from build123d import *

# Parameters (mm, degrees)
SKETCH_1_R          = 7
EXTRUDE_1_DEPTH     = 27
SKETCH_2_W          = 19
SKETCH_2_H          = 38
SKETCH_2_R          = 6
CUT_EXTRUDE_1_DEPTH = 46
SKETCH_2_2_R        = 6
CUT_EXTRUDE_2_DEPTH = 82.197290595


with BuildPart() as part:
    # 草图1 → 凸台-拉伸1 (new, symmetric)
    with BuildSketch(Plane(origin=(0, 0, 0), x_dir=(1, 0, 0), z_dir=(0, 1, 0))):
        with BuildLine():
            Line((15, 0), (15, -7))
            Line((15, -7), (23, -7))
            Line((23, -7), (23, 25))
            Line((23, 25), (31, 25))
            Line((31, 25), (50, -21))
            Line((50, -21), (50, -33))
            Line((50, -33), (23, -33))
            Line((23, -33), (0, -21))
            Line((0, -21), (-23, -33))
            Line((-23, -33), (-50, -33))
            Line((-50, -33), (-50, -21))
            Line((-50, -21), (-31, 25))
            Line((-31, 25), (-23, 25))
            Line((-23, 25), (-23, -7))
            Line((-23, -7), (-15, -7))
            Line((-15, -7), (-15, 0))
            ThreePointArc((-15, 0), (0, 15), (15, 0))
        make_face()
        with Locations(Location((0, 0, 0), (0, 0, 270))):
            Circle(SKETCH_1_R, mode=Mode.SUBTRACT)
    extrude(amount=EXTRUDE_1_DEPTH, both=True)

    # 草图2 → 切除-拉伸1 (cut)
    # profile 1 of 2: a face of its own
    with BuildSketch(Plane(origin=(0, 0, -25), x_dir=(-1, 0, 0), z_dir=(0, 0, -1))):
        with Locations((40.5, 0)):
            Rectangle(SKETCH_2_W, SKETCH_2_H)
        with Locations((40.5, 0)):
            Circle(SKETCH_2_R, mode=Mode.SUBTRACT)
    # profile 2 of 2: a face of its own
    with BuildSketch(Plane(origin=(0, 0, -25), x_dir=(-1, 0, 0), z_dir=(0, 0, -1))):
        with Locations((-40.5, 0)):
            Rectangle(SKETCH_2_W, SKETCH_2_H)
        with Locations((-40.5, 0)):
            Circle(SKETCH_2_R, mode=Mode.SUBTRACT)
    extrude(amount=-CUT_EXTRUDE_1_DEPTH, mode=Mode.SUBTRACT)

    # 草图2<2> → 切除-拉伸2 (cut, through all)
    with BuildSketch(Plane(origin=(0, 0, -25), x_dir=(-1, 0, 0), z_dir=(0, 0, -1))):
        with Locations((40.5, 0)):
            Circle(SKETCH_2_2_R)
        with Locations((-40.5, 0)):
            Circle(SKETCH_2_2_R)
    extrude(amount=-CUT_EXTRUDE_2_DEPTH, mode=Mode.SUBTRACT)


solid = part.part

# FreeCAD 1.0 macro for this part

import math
import FreeCAD as App
import Part
import Sketcher


def add_polygon(sketch, points):
    """Adds a closed chain of lines whose ends are joined by coincident constraints."""
    first, n = sketch.GeometryCount, len(points)
    for a, b in zip(points, points[1:] + points[:1]):
        sketch.addGeometry(Part.LineSegment(App.Vector(*a, 0), App.Vector(*b, 0)), False)
    for i in range(n):
        sketch.addConstraint(Sketcher.Constraint("Coincident", first + i, 2, first + (i + 1) % n, 1))

doc = App.newDocument("Part")
body = doc.addObject("PartDesign::Body", "Body")

# Sketch on XZ plane
sketch1 = doc.addObject("Sketcher::SketchObject", "Sketch")
body.addObject(sketch1)
sketch1.AttachmentSupport = (doc.XZ_Plane, [""])
sketch1.MapMode = "FlatFace"
sketch1.addGeometry([
    Part.LineSegment(App.Vector(15, 7, 0), App.Vector(15, 0, 0)),  # 0
    Part.ArcOfCircle(Part.Circle(App.Vector(0, 0, 0), App.Vector(0, 0, 1), 15), math.radians(180), math.radians(360)),  # 1
    Part.LineSegment(App.Vector(-15, 0, 0), App.Vector(-15, 7, 0)),  # 2
    Part.LineSegment(App.Vector(-15, 7, 0), App.Vector(-23, 7, 0)),  # 3
    Part.LineSegment(App.Vector(-23, 7, 0), App.Vector(-23, -25, 0)),  # 4
    Part.LineSegment(App.Vector(-23, -25, 0), App.Vector(-31, -25, 0)),  # 5
    Part.LineSegment(App.Vector(-31, -25, 0), App.Vector(-50, 21, 0)),  # 6
    Part.LineSegment(App.Vector(-50, 21, 0), App.Vector(-50, 33, 0)),  # 7
    Part.LineSegment(App.Vector(-50, 33, 0), App.Vector(-23, 33, 0)),  # 8
    Part.LineSegment(App.Vector(-23, 33, 0), App.Vector(0, 21, 0)),  # 9
    Part.LineSegment(App.Vector(0, 21, 0), App.Vector(23, 33, 0)),  # 10
    Part.LineSegment(App.Vector(23, 33, 0), App.Vector(50, 33, 0)),  # 11
    Part.LineSegment(App.Vector(50, 33, 0), App.Vector(50, 21, 0)),  # 12
    Part.LineSegment(App.Vector(50, 21, 0), App.Vector(31, -25, 0)),  # 13
    Part.LineSegment(App.Vector(31, -25, 0), App.Vector(23, -25, 0)),  # 14
    Part.LineSegment(App.Vector(23, -25, 0), App.Vector(23, 7, 0)),  # 15
    Part.LineSegment(App.Vector(23, 7, 0), App.Vector(15, 7, 0)),  # 16
    Part.Circle(App.Vector(0, 0, 0), App.Vector(0, 0, 1), 7),  # 17
], False)
sketch1.addConstraint([
    Sketcher.Constraint("Tangent", 0, 2, 1, 2),
    Sketcher.Constraint("Tangent", 1, 1, 2, 1),
    Sketcher.Constraint("Coincident", 2, 2, 3, 1),
    Sketcher.Constraint("Coincident", 3, 2, 4, 1),
    Sketcher.Constraint("Coincident", 4, 2, 5, 1),
    Sketcher.Constraint("Coincident", 5, 2, 6, 1),
    Sketcher.Constraint("Coincident", 6, 2, 7, 1),
    Sketcher.Constraint("Coincident", 7, 2, 8, 1),
    Sketcher.Constraint("Coincident", 8, 2, 9, 1),
    Sketcher.Constraint("Coincident", 9, 2, 10, 1),
    Sketcher.Constraint("Coincident", 10, 2, 11, 1),
    Sketcher.Constraint("Coincident", 11, 2, 12, 1),
    Sketcher.Constraint("Coincident", 12, 2, 13, 1),
    Sketcher.Constraint("Coincident", 13, 2, 14, 1),
    Sketcher.Constraint("Coincident", 14, 2, 15, 1),
    Sketcher.Constraint("Coincident", 15, 2, 16, 1),
    Sketcher.Constraint("Coincident", 16, 2, 0, 1),
    Sketcher.Constraint("Vertical", 0),
    Sketcher.Constraint("Vertical", 2),
    Sketcher.Constraint("Horizontal", 3),
    Sketcher.Constraint("Vertical", 4),
    Sketcher.Constraint("Horizontal", 5),
    Sketcher.Constraint("Vertical", 7),
    Sketcher.Constraint("Horizontal", 8),
    Sketcher.Constraint("Horizontal", 11),
    Sketcher.Constraint("Vertical", 12),
    Sketcher.Constraint("Horizontal", 14),
    Sketcher.Constraint("Vertical", 15),
    Sketcher.Constraint("Horizontal", 16),
    Sketcher.Constraint("Coincident", 1, 3, -1, 1),
    Sketcher.Constraint("Coincident", 17, 3, -1, 1),
    Sketcher.Constraint("Symmetric", 8, 2, 10, 2, -2),
    Sketcher.Constraint("Symmetric", 6, 2, 12, 2, -2),
    Sketcher.Constraint("Symmetric", 5, 2, 13, 2, -2),
    Sketcher.Constraint("Symmetric", 3, 2, 15, 2, -2),
    Sketcher.Constraint("PointOnObject", 9, 2, -2),
    Sketcher.Constraint("Horizontal", 6, 2, 9, 2),
    Sketcher.Constraint("Vertical", 4, 2, 8, 2),
    Sketcher.Constraint("Equal", 3, 5),
    Sketcher.Constraint("Diameter", 17, 14.0),
    Sketcher.Constraint("Radius", 1, 15.0),
    Sketcher.Constraint("DistanceX", 3, 2, 3, 1, 8.0),
    Sketcher.Constraint("DistanceX", 8, 1, 8, 2, 27.0),
    Sketcher.Constraint("DistanceY", 0, 2, 0, 1, 7.0),
    Sketcher.Constraint("DistanceY", 4, 2, 4, 1, 32.0),
    Sketcher.Constraint("DistanceY", 7, 1, 7, 2, 12.0),
    Sketcher.Constraint("DistanceY", -1, 1, 6, 2, 21.0),
])
pad1 = doc.addObject("PartDesign::Pad", "Pad")
body.addObject(pad1)
pad1.Profile = sketch1
pad1.Length = 54
pad1.Midplane = True

# Sketch on XY plane
sketch2 = doc.addObject("Sketcher::SketchObject", "Sketch001")
body.addObject(sketch2)
sketch2.AttachmentSupport = (doc.XY_Plane, [""])
sketch2.MapMode = "FlatFace"
sketch2.AttachmentOffset = App.Placement(App.Vector(0, 0, -25), App.Rotation())
add_polygon(sketch2, [(-31, 19), (-31, -19), (-50, -19), (-50, 19)])  # lines 0-3
sketch2.addGeometry(Part.Circle(App.Vector(-40, 0, 0), App.Vector(0, 0, 1), 6), False)  # 4
add_polygon(sketch2, [(50, 19), (50, -19), (31, -19), (31, 19)])  # lines 5-8
sketch2.addGeometry(Part.Circle(App.Vector(40, 0, 0), App.Vector(0, 0, 1), 6), False)  # 9
sketch2.addConstraint([
    Sketcher.Constraint("Vertical", 0),
    Sketcher.Constraint("Horizontal", 1),
    Sketcher.Constraint("Vertical", 2),
    Sketcher.Constraint("Horizontal", 3),
    Sketcher.Constraint("Vertical", 5),
    Sketcher.Constraint("Horizontal", 6),
    Sketcher.Constraint("Vertical", 7),
    Sketcher.Constraint("Horizontal", 8),
    Sketcher.Constraint("Equal", 4, 9),
    Sketcher.Constraint("Symmetric", 4, 3, 9, 3, -1, 1),
    Sketcher.Constraint("Symmetric", 2, 2, 5, 2, -1, 1),
    Sketcher.Constraint("Symmetric", 0, 2, 7, 2, -1, 1),
    Sketcher.Constraint("PointOnObject", 4, 3, -1),
    Sketcher.Constraint("Horizontal", 1, 2, 5, 2),
    Sketcher.Constraint("Diameter", 4, 12.0),
    Sketcher.Constraint("DistanceX", 1, 2, 1, 1, 19.0),
    Sketcher.Constraint("DistanceY", 0, 2, 0, 1, 38.0),
    Sketcher.Constraint("DistanceX", 0, 2, -1, 1, 31.0),
    Sketcher.Constraint("DistanceX", 4, 3, 9, 3, 81.0),
])
pocket1 = doc.addObject("PartDesign::Pocket", "Pocket")
body.addObject(pocket1)
pocket1.Profile = sketch2
pocket1.Length = 46
pocket1.Reversed = True

# Sketch on XY plane
sketch3 = doc.addObject("Sketcher::SketchObject", "Sketch002")
body.addObject(sketch3)
sketch3.AttachmentSupport = (doc.XY_Plane, [""])
sketch3.MapMode = "FlatFace"
sketch3.AttachmentOffset = App.Placement(App.Vector(0, 0, -25), App.Rotation())
sketch3.addGeometry([
    Part.Circle(App.Vector(-40, 0, 0), App.Vector(0, 0, 1), 6),
    Part.Circle(App.Vector(40, 0, 0), App.Vector(0, 0, 1), 6),
], False)
sketch3.addConstraint([
    Sketcher.Constraint("Equal", 0, 1),
    Sketcher.Constraint("Symmetric", 0, 3, 1, 3, -1, 1),
    Sketcher.Constraint("PointOnObject", 0, 3, -1),
    Sketcher.Constraint("Diameter", 0, 12.0),
    Sketcher.Constraint("DistanceX", 0, 3, 1, 3, 81.0),
])
pocket2 = doc.addObject("PartDesign::Pocket", "Pocket001")
body.addObject(pocket2)
pocket2.Profile = sketch3
pocket2.Type = "ThroughAll"
pocket2.Reversed = True

doc.recompute()
